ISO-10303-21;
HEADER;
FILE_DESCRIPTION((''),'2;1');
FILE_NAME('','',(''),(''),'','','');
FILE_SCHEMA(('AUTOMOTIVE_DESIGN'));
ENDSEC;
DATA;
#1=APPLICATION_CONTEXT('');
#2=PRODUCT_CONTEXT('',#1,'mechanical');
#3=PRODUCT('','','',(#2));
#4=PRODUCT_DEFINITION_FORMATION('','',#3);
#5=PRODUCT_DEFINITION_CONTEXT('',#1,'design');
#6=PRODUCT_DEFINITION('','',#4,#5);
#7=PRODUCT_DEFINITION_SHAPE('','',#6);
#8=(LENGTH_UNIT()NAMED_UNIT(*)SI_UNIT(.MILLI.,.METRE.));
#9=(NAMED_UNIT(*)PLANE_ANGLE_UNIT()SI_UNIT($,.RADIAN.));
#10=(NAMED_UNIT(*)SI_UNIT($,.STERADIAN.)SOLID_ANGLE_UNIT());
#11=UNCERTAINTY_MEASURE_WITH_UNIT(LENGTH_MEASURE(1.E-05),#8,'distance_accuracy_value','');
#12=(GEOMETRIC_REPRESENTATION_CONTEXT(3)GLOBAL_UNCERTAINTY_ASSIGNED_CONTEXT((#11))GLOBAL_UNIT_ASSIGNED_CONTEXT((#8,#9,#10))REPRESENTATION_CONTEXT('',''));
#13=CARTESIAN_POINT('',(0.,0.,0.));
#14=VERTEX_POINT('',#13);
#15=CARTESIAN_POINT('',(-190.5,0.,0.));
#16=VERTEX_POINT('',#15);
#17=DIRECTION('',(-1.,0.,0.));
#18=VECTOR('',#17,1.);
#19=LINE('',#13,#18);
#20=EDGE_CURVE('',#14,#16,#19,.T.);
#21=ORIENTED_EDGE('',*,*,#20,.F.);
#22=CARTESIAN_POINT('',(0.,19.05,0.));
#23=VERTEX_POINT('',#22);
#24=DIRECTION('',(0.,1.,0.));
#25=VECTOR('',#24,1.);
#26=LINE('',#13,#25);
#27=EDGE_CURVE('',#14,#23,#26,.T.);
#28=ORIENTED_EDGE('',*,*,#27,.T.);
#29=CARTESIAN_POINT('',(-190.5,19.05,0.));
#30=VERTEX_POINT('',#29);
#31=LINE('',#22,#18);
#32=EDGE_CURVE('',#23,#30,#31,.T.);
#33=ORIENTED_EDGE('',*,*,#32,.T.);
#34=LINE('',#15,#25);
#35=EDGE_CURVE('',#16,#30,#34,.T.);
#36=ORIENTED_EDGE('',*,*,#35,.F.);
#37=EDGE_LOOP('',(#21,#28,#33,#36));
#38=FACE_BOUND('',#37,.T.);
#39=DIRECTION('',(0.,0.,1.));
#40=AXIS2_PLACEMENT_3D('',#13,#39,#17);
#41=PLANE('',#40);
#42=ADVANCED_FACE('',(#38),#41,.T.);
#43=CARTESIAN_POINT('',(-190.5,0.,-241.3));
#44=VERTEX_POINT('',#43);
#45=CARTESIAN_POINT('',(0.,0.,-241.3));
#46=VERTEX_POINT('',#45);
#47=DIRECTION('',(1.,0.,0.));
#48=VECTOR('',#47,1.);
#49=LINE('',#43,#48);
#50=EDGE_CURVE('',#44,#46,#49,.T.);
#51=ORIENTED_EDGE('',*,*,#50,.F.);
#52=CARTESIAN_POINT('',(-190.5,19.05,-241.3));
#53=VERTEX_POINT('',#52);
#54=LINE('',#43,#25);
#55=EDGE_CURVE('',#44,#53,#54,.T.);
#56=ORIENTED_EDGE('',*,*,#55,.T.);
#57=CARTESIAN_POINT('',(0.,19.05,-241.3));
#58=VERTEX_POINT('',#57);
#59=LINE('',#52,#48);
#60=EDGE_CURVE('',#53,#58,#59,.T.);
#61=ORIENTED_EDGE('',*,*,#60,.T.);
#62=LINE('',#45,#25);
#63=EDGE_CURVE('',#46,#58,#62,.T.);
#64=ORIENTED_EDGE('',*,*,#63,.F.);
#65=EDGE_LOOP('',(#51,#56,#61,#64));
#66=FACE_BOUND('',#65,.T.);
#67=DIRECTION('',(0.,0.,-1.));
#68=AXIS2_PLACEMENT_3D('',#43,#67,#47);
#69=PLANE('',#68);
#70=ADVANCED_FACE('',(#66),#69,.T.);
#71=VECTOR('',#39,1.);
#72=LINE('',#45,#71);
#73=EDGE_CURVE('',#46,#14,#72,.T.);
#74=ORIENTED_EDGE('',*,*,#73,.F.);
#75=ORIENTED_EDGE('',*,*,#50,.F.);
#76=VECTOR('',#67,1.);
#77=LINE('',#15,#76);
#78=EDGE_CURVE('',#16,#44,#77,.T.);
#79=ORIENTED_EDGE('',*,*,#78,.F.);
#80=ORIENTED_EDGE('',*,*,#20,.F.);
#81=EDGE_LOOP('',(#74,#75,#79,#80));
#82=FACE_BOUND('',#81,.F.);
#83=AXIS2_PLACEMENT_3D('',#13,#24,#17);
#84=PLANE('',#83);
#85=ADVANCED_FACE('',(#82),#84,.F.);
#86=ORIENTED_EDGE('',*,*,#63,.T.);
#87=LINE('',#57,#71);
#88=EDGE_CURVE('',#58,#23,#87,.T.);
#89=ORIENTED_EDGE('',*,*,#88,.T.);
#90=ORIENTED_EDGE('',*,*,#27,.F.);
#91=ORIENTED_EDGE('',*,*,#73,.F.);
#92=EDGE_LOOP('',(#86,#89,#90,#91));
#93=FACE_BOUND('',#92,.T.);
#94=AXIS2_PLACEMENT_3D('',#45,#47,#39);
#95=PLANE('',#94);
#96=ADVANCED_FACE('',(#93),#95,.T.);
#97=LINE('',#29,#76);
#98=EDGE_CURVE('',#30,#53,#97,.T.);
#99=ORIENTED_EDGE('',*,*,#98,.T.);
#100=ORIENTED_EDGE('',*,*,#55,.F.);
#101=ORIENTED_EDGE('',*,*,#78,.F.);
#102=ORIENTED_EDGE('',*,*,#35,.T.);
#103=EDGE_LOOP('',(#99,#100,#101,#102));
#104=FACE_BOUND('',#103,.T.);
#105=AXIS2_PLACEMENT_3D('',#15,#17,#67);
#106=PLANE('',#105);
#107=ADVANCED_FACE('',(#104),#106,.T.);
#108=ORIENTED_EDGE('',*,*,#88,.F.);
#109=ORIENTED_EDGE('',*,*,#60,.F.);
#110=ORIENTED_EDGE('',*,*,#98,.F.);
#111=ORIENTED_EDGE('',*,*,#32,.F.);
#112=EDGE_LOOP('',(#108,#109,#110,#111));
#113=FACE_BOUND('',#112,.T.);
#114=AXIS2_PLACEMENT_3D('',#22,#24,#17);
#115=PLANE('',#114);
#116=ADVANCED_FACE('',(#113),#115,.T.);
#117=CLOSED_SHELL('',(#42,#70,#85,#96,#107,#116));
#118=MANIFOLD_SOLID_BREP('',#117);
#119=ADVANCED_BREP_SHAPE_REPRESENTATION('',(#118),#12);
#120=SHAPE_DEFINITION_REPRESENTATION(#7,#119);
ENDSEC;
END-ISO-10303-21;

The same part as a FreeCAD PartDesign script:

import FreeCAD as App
import Part
import Sketcher
from FreeCAD import Vector
Q = App.Units.Quantity

doc = App.newDocument("Part")
body = doc.addObject("PartDesign::Body", "Body")

# Sketch on XZ plane
sketch1 = doc.addObject("Sketcher::SketchObject", "Sketch")
body.addObject(sketch1)
sketch1.AttachmentSupport = (doc.XZ_Plane, [""])
sketch1.MapMode = "FlatFace"
sketch1.addGeometry([
    Part.LineSegment(Vector(-190, 0, 0), Vector(0, 0, 0)),
    Part.LineSegment(Vector(0, 0, 0), Vector(0, -241, 0)),
    Part.LineSegment(Vector(0, -241, 0), Vector(-190, -241, 0)),
    Part.LineSegment(Vector(-190, -241, 0), Vector(-190, 0, 0)),
], False)
sketch1.addConstraint([
    Sketcher.Constraint("Coincident", 0, 2, 1, 1),
    Sketcher.Constraint("Coincident", 1, 2, 2, 1),
    Sketcher.Constraint("Coincident", 2, 2, 3, 1),
    Sketcher.Constraint("Coincident", 3, 2, 0, 1),
    Sketcher.Constraint("Horizontal", 0),
    Sketcher.Constraint("Vertical", 1),
    Sketcher.Constraint("Horizontal", 2),
    Sketcher.Constraint("Vertical", 3),
    Sketcher.Constraint("Coincident", 0, 2, -1, 1),
    Sketcher.Constraint("DistanceX", 0, 1, 0, 2, Q("7.5 in")),
    Sketcher.Constraint("DistanceY", 1, 2, 1, 1, Q("9.5 in")),
])
pad1 = doc.addObject("PartDesign::Pad", "Pad")
body.addObject(pad1)
pad1.Profile = sketch1
pad1.Length = Q("0.75 in")
pad1.Reversed = True

doc.recompute()
